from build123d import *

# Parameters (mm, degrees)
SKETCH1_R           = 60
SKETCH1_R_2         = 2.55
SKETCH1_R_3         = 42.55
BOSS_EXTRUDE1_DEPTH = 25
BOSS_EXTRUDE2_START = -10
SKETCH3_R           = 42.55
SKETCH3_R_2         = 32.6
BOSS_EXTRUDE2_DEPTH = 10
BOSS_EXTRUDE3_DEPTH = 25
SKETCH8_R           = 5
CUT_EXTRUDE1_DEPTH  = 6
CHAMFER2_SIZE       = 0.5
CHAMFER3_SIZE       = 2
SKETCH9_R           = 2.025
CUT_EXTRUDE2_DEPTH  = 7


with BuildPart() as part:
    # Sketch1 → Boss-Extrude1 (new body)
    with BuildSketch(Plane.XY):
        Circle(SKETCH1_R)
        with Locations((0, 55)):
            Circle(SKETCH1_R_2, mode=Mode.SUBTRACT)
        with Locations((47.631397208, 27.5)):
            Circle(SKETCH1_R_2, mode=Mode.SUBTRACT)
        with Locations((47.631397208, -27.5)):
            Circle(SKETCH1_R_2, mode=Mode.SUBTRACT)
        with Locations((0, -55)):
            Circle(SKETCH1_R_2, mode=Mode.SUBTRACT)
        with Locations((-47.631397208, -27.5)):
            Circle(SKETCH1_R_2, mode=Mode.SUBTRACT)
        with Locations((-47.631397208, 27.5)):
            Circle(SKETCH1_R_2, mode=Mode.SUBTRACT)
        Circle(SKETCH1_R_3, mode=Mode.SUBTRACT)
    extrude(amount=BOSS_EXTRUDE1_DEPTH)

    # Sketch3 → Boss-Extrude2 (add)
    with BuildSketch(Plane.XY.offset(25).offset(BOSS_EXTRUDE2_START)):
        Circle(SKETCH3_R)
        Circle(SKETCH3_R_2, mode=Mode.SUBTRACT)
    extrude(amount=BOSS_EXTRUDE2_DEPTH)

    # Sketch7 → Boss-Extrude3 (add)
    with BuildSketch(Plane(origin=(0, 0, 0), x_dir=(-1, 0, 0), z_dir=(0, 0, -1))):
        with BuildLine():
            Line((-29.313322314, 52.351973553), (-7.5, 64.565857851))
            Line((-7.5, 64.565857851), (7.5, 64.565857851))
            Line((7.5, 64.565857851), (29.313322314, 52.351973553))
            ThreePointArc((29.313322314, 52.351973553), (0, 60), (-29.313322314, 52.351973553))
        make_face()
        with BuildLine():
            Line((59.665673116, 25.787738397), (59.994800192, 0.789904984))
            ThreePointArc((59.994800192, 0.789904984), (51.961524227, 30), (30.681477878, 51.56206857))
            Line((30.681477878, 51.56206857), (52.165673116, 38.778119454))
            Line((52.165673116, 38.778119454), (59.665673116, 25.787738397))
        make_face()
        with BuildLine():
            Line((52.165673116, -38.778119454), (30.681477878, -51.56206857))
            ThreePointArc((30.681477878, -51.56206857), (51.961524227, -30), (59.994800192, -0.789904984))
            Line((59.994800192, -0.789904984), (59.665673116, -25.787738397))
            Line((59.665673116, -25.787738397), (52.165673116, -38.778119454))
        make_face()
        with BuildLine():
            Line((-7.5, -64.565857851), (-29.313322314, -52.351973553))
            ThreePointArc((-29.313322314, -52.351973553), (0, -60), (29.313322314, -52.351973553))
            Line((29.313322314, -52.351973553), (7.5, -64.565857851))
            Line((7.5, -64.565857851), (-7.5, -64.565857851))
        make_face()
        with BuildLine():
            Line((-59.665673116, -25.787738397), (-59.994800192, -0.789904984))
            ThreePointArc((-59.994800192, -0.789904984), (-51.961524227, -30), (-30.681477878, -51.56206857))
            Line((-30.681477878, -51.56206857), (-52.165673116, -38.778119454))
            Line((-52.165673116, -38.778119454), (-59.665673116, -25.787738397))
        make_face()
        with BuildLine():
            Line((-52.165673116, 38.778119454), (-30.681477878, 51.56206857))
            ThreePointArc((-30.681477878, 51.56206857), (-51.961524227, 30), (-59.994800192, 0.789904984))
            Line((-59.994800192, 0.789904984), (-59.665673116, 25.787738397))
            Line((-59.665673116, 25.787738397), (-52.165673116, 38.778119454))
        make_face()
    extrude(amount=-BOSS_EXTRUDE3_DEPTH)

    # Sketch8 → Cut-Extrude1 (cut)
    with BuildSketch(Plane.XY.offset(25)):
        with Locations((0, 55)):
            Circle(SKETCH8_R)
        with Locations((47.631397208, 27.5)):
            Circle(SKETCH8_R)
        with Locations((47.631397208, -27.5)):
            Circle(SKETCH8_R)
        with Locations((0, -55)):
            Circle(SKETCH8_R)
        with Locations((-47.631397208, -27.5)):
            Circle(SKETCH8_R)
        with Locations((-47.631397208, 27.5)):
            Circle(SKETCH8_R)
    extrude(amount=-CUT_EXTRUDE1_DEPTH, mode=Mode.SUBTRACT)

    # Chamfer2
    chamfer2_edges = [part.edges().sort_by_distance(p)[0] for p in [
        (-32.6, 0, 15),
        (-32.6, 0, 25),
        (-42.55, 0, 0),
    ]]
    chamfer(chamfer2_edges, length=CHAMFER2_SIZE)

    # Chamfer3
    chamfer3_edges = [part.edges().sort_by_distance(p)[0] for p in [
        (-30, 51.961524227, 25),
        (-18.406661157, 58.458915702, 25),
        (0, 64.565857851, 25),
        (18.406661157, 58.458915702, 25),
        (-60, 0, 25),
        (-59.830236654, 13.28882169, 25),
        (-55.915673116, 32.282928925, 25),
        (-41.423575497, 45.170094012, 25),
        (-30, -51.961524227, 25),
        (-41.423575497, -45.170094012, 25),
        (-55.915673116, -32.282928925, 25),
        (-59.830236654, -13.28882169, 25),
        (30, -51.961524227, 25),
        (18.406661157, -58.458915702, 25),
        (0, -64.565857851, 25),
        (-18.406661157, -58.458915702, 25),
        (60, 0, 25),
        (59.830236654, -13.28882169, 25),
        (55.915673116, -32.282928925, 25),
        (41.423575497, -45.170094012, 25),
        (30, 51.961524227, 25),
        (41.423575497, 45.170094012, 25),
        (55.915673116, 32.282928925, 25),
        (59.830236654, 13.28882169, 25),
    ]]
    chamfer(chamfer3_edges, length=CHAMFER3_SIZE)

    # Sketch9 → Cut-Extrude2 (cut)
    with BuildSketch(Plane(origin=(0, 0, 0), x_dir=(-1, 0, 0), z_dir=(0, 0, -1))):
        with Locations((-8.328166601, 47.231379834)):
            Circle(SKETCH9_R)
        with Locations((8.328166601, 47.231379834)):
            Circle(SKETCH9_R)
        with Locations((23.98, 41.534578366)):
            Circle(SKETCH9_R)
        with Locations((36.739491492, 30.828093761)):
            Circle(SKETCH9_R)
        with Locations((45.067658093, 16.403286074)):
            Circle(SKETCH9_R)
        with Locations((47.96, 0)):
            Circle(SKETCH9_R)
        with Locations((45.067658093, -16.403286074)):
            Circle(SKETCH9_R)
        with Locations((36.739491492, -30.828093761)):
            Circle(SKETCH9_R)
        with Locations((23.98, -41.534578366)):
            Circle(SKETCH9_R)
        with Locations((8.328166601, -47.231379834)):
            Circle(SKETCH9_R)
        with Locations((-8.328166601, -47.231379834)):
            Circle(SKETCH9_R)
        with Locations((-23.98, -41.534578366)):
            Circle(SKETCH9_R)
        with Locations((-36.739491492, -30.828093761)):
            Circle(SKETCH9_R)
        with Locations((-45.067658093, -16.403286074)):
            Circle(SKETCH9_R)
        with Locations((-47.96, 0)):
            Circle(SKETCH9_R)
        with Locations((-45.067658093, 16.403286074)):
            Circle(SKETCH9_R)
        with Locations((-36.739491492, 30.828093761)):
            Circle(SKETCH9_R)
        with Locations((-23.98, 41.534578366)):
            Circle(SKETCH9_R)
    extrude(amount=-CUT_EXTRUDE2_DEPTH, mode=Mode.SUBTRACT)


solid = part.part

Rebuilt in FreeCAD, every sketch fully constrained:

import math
import FreeCAD as App
import Part
import Sketcher
Q = App.Units.Quantity


def edges_at(feature, points):
    """Names of the edges that pass closest to the given points."""
    edges = feature.Shape.Edges
    near = lambda p: min(range(len(edges)), key=lambda i: edges[i].distToShape(Part.Vertex(*p))[0])
    return sorted({f"Edge{near(p) + 1}" for p in points})

doc = App.newDocument("Part")
body = doc.addObject("PartDesign::Body", "Body")

# Sketch on XY plane
sketch1 = body.newObject("Sketcher::SketchObject", "Sketch")
sketch1.AttachmentSupport = (doc.getObject("XY_Plane"), [""])
sketch1.MapMode = "FlatFace"
sketch1.addGeometry([
    Part.Circle(App.Vector(0, 0, 0), App.Vector(0, 0, 1), 60),  # 0
    Part.Circle(App.Vector(0, -55, 0), App.Vector(0, 0, 1), 2.5),  # 1
    Part.Circle(App.Vector(-47.6, -27.5, 0), App.Vector(0, 0, 1), 2.5),  # 2
    Part.Circle(App.Vector(47.6, -27.5, 0), App.Vector(0, 0, 1), 2.5),  # 3
    Part.Circle(App.Vector(-47.6, 27.5, 0), App.Vector(0, 0, 1), 2.5),  # 4
    Part.Circle(App.Vector(0, 0, 0), App.Vector(0, 0, 1), 42.5),  # 5
    Part.Circle(App.Vector(0, 55, 0), App.Vector(0, 0, 1), 2.5),  # 6
    Part.Circle(App.Vector(47.6, 27.5, 0), App.Vector(0, 0, 1), 2.5),  # 7
], False)
sketch1.addConstraint([
    Sketcher.Constraint("Coincident", 0, 3, -1, 1),
    Sketcher.Constraint("Coincident", 5, 3, -1, 1),
    Sketcher.Constraint("Equal", 1, 2),
    Sketcher.Constraint("Equal", 2, 3),
    Sketcher.Constraint("Equal", 3, 4),
    Sketcher.Constraint("Equal", 4, 6),
    Sketcher.Constraint("Equal", 6, 7),
    Sketcher.Constraint("Symmetric", 3, 3, 4, 3, -1, 1),
    Sketcher.Constraint("Symmetric", 1, 3, 6, 3, -1, 1),
    Sketcher.Constraint("Symmetric", 2, 3, 7, 3, -1, 1),
    Sketcher.Constraint("Symmetric", 2, 3, 3, 3, -2),
    Sketcher.Constraint("PointOnObject", 1, 3, -2),
    Sketcher.Constraint("Diameter", 0, 120.0),
    Sketcher.Constraint("Diameter", 1, 5.1),
    Sketcher.Constraint("Diameter", 5, 85.1),
    Sketcher.Constraint("DistanceY", 1, 3, -1, 1, 55.0),
    Sketcher.Constraint("DistanceY", 2, 3, 4, 3, 55.0),
    Sketcher.Constraint("DistanceX", 2, 3, -1, 1, 47.631397),
])
pad1 = body.newObject("PartDesign::Pad", "Pad")
pad1.Profile = sketch1
pad1.Length = 25

# Sketch on XY plane
sketch2 = body.newObject("Sketcher::SketchObject", "Sketch001")
sketch2.AttachmentSupport = (doc.getObject("XY_Plane"), [""])
sketch2.MapMode = "FlatFace"
sketch2.AttachmentOffset = App.Placement(App.Vector(0, 0, 15), App.Rotation())
sketch2.addGeometry([
    Part.Circle(App.Vector(0, 0, 0), App.Vector(0, 0, 1), 43),
    Part.Circle(App.Vector(0, 0, 0), App.Vector(0, 0, 1), 33),
], False)
sketch2.addConstraint([
    Sketcher.Constraint("Coincident", 0, 3, -1, 1),
    Sketcher.Constraint("Coincident", 1, 3, -1, 1),
    Sketcher.Constraint("Diameter", 0, 85.1),
    Sketcher.Constraint("Diameter", 1, 65.2),
])
pad2 = body.newObject("PartDesign::Pad", "Pad001")
pad2.Profile = sketch2
pad2.Length = 10

# Sketch on XY plane
sketch3 = body.newObject("Sketcher::SketchObject", "Sketch002")
sketch3.AttachmentSupport = (doc.getObject("XY_Plane"), [""])
sketch3.MapMode = "FlatFace"
sketch3.addGeometry([
    Part.LineSegment(App.Vector(8, 65, 0), App.Vector(29, 52, 0)),  # 0
    Part.ArcOfCircle(Part.Circle(App.Vector(0, 0, 0), App.Vector(0, 0, 1), 60), math.radians(61), math.radians(119)),  # 1
    Part.LineSegment(App.Vector(-29, 52, 0), App.Vector(-8, 65, 0)),  # 2
    Part.LineSegment(App.Vector(-8, 65, 0), App.Vector(8, 65, 0)),  # 3
    Part.LineSegment(App.Vector(-60, 1, 0), App.Vector(-60, 26, 0)),  # 4
    Part.LineSegment(App.Vector(-60, 26, 0), App.Vector(-52, 39, 0)),  # 5
    Part.LineSegment(App.Vector(-52, 39, 0), App.Vector(-31, 52, 0)),  # 6
    Part.ArcOfCircle(Part.Circle(App.Vector(0, 0, 0), App.Vector(0, 0, 1), 60), math.radians(121), math.radians(179)),  # 7
    Part.LineSegment(App.Vector(-31, -52, 0), App.Vector(-52, -39, 0)),  # 8
    Part.LineSegment(App.Vector(-52, -39, 0), App.Vector(-60, -26, 0)),  # 9
    Part.LineSegment(App.Vector(-60, -26, 0), App.Vector(-60, -1, 0)),  # 10
    Part.ArcOfCircle(Part.Circle(App.Vector(0, 0, 0), App.Vector(0, 0, 1), 60), math.radians(-179), math.radians(-121)),  # 11
    Part.LineSegment(App.Vector(29, -52, 0), App.Vector(8, -65, 0)),  # 12
    Part.LineSegment(App.Vector(8, -65, 0), App.Vector(-8, -65, 0)),  # 13
    Part.LineSegment(App.Vector(-8, -65, 0), App.Vector(-29, -52, 0)),  # 14
    Part.ArcOfCircle(Part.Circle(App.Vector(0, 0, 0), App.Vector(0, 0, 1), 60), math.radians(-119), math.radians(-61)),  # 15
    Part.LineSegment(App.Vector(60, -1, 0), App.Vector(60, -26, 0)),  # 16
    Part.LineSegment(App.Vector(60, -26, 0), App.Vector(52, -39, 0)),  # 17
    Part.LineSegment(App.Vector(52, -39, 0), App.Vector(31, -52, 0)),  # 18
    Part.ArcOfCircle(Part.Circle(App.Vector(0, 0, 0), App.Vector(0, 0, 1), 60), math.radians(-59), math.radians(-1)),  # 19
    Part.LineSegment(App.Vector(31, 52, 0), App.Vector(52, 39, 0)),  # 20
    Part.LineSegment(App.Vector(52, 39, 0), App.Vector(60, 26, 0)),  # 21
    Part.LineSegment(App.Vector(60, 26, 0), App.Vector(60, 1, 0)),  # 22
    Part.ArcOfCircle(Part.Circle(App.Vector(0, 0, 0), App.Vector(0, 0, 1), 60), math.radians(1), math.radians(59)),  # 23
], False)
sketch3.addConstraint([
    Sketcher.Constraint("Tangent", 0, 2, 1, 1),
    Sketcher.Constraint("Tangent", 1, 2, 2, 1),
    Sketcher.Constraint("Coincident", 2, 2, 3, 1),
    Sketcher.Constraint("Coincident", 3, 2, 0, 1),
    Sketcher.Constraint("Coincident", 4, 2, 5, 1),
    Sketcher.Constraint("Coincident", 5, 2, 6, 1),
    Sketcher.Constraint("Tangent", 6, 2, 7, 1),
    Sketcher.Constraint("Tangent", 7, 2, 4, 1),
    Sketcher.Constraint("Coincident", 8, 2, 9, 1),
    Sketcher.Constraint("Coincident", 9, 2, 10, 1),
    Sketcher.Constraint("Tangent", 10, 2, 11, 1),
    Sketcher.Constraint("Tangent", 11, 2, 8, 1),
    Sketcher.Constraint("Coincident", 12, 2, 13, 1),
    Sketcher.Constraint("Coincident", 13, 2, 14, 1),
    Sketcher.Constraint("Tangent", 14, 2, 15, 1),
    Sketcher.Constraint("Tangent", 15, 2, 12, 1),
    Sketcher.Constraint("Coincident", 16, 2, 17, 1),
    Sketcher.Constraint("Coincident", 17, 2, 18, 1),
    Sketcher.Constraint("Tangent", 18, 2, 19, 1),
    Sketcher.Constraint("Tangent", 19, 2, 16, 1),
    Sketcher.Constraint("Coincident", 20, 2, 21, 1),
    Sketcher.Constraint("Coincident", 21, 2, 22, 1),
    Sketcher.Constraint("Tangent", 22, 2, 23, 1),
    Sketcher.Constraint("Tangent", 23, 2, 20, 1),
    Sketcher.Constraint("Horizontal", 3),
    Sketcher.Constraint("Horizontal", 13),
    Sketcher.Constraint("Coincident", 1, 3, -1, 1),
    Sketcher.Constraint("Coincident", 7, 3, -1, 1),
    Sketcher.Constraint("Coincident", 11, 3, -1, 1),
    Sketcher.Constraint("Coincident", 15, 3, -1, 1),
    Sketcher.Constraint("Coincident", 19, 3, -1, 1),
    Sketcher.Constraint("Coincident", 23, 3, -1, 1),
    Sketcher.Constraint("Equal", 1, 7),
    Sketcher.Constraint("Equal", 7, 11),
    Sketcher.Constraint("Equal", 11, 15),
    Sketcher.Constraint("Equal", 15, 19),
    Sketcher.Constraint("Equal", 19, 23),
    Sketcher.Constraint("Symmetric", 2, 2, 12, 2, -1, 1),
    Sketcher.Constraint("Symmetric", 4, 2, 16, 2, -1, 1),
    Sketcher.Constraint("Symmetric", 5, 2, 17, 2, -1, 1),
    Sketcher.Constraint("Symmetric", 8, 2, 20, 2, -1, 1),
    Sketcher.Constraint("Symmetric", 9, 2, 21, 2, -1, 1),
    Sketcher.Constraint("Symmetric", 9, 2, 16, 2, -2),
    Sketcher.Constraint("Symmetric", 8, 2, 17, 2, -2),
    Sketcher.Constraint("Parallel", 0, 14),
    Sketcher.Constraint("Horizontal", 0, 2, 1, 2),
    Sketcher.Constraint("Equal", 2, 4),
    Sketcher.Constraint("Equal", 4, 6),
    Sketcher.Constraint("Radius", 1, 60.0),
    Sketcher.Constraint("DistanceX", 3, 1, 3, 2, 15.0),
    Sketcher.Constraint("Angle", 5, Q("60 deg")),
    Sketcher.Constraint("Distance", 0, 25.0),
    Sketcher.Constraint("Distance", 5, 15.0),
])
pad3 = body.newObject("PartDesign::Pad", "Pad002")
pad3.Profile = sketch3
pad3.Length = 25

# Sketch on XY plane
sketch4 = body.newObject("Sketcher::SketchObject", "Sketch003")
sketch4.AttachmentSupport = (doc.getObject("XY_Plane"), [""])
sketch4.MapMode = "FlatFace"
sketch4.AttachmentOffset = App.Placement(App.Vector(0, 0, 25), App.Rotation())
sketch4.addGeometry([
    Part.Circle(App.Vector(0, 55, 0), App.Vector(0, 0, 1), 5),  # 0
    Part.Circle(App.Vector(48, 28, 0), App.Vector(0, 0, 1), 5),  # 1
    Part.Circle(App.Vector(48, -28, 0), App.Vector(0, 0, 1), 5),  # 2
    Part.Circle(App.Vector(0, -55, 0), App.Vector(0, 0, 1), 5),  # 3
    Part.Circle(App.Vector(-48, -28, 0), App.Vector(0, 0, 1), 5),  # 4
    Part.Circle(App.Vector(-48, 28, 0), App.Vector(0, 0, 1), 5),  # 5
], False)
sketch4.addConstraint([
    Sketcher.Constraint("Equal", 0, 1),
    Sketcher.Constraint("Equal", 1, 2),
    Sketcher.Constraint("Equal", 2, 3),
    Sketcher.Constraint("Equal", 3, 4),
    Sketcher.Constraint("Equal", 4, 5),
    Sketcher.Constraint("Symmetric", 0, 3, 3, 3, -1, 1),
    Sketcher.Constraint("Symmetric", 1, 3, 4, 3, -1, 1),
    Sketcher.Constraint("Symmetric", 2, 3, 5, 3, -1, 1),
    Sketcher.Constraint("Symmetric", 2, 3, 4, 3, -2),
    Sketcher.Constraint("PointOnObject", 0, 3, -2),
    Sketcher.Constraint("Diameter", 0, 10.0),
    Sketcher.Constraint("DistanceY", -1, 1, 0, 3, 55.0),
    Sketcher.Constraint("DistanceY", 2, 3, 1, 3, 55.0),
    Sketcher.Constraint("DistanceX", -1, 1, 1, 3, 47.631397),
])
pocket1 = body.newObject("PartDesign::Pocket", "Pocket")
pocket1.Profile = sketch4
pocket1.Length = 6
doc.recompute()

chamfer = body.newObject("PartDesign::Chamfer", "Chamfer")
chamfer.Base = (pocket1, edges_at(pocket1, [(-32.6, 0, 15), (-32.6, 0, 25), (-42.55, 0, 0)]))
chamfer.Size = 0.5
doc.recompute()

chamfer2 = body.newObject("PartDesign::Chamfer", "Chamfer001")
chamfer2.Base = (chamfer, edges_at(chamfer, [
    (-30, 51.962, 25),
    (-18.407, 58.459, 25),
    (0, 64.566, 25),
    (18.407, 58.459, 25),
    (-60, 0, 25),
    (-59.83, 13.289, 25),
    (-55.916, 32.283, 25),
    (-41.424, 45.17, 25),
    (-30, -51.962, 25),
    (-41.424, -45.17, 25),
    (-55.916, -32.283, 25),
    (-59.83, -13.289, 25),
    (30, -51.962, 25),
    (18.407, -58.459, 25),
    (0, -64.566, 25),
    (-18.407, -58.459, 25),
    (60, 0, 25),
    (59.83, -13.289, 25),
    (55.916, -32.283, 25),
    (41.424, -45.17, 25),
    (30, 51.962, 25),
    (41.424, 45.17, 25),
    (55.916, 32.283, 25),
    (59.83, 13.289, 25),
]))
chamfer2.Size = 2

# Sketch on XY plane
sketch5 = body.newObject("Sketcher::SketchObject", "Sketch004")
sketch5.AttachmentSupport = (doc.getObject("XY_Plane"), [""])
sketch5.MapMode = "FlatFace"
sketch5.addGeometry([
    Part.Circle(App.Vector(8.3, 47.2, 0), App.Vector(0, 0, 1), 2),  # 0
    Part.Circle(App.Vector(-8.3, 47.2, 0), App.Vector(0, 0, 1), 2),  # 1
    Part.Circle(App.Vector(-24, 41.5, 0), App.Vector(0, 0, 1), 2),  # 2
    Part.Circle(App.Vector(-36.7, 30.8, 0), App.Vector(0, 0, 1), 2),  # 3
    Part.Circle(App.Vector(-45.1, 16.4, 0), App.Vector(0, 0, 1), 2),  # 4
    Part.Circle(App.Vector(-48, 0, 0), App.Vector(0, 0, 1), 2),  # 5
    Part.Circle(App.Vector(-45.1, -16.4, 0), App.Vector(0, 0, 1), 2),  # 6
    Part.Circle(App.Vector(-36.7, -30.8, 0), App.Vector(0, 0, 1), 2),  # 7
    Part.Circle(App.Vector(-24, -41.5, 0), App.Vector(0, 0, 1), 2),  # 8
    Part.Circle(App.Vector(-8.3, -47.2, 0), App.Vector(0, 0, 1), 2),  # 9
    Part.Circle(App.Vector(8.3, -47.2, 0), App.Vector(0, 0, 1), 2),  # 10
    Part.Circle(App.Vector(24, -41.5, 0), App.Vector(0, 0, 1), 2),  # 11
    Part.Circle(App.Vector(36.7, -30.8, 0), App.Vector(0, 0, 1), 2),  # 12
    Part.Circle(App.Vector(45.1, -16.4, 0), App.Vector(0, 0, 1), 2),  # 13
    Part.Circle(App.Vector(48, 0, 0), App.Vector(0, 0, 1), 2),  # 14
    Part.Circle(App.Vector(45.1, 16.4, 0), App.Vector(0, 0, 1), 2),  # 15
    Part.Circle(App.Vector(36.7, 30.8, 0), App.Vector(0, 0, 1), 2),  # 16
    Part.Circle(App.Vector(24, 41.5, 0), App.Vector(0, 0, 1), 2),  # 17
], False)
sketch5.addConstraint([
    Sketcher.Constraint("Equal", 0, 1),
    Sketcher.Constraint("Equal", 1, 2),
    Sketcher.Constraint("Equal", 2, 3),
    Sketcher.Constraint("Equal", 3, 4),
    Sketcher.Constraint("Equal", 4, 5),
    Sketcher.Constraint("Equal", 5, 6),
    Sketcher.Constraint("Equal", 6, 7),
    Sketcher.Constraint("Equal", 7, 8),
    Sketcher.Constraint("Equal", 8, 9),
    Sketcher.Constraint("Equal", 9, 10),
    Sketcher.Constraint("Equal", 10, 11),
    Sketcher.Constraint("Equal", 11, 12),
    Sketcher.Constraint("Equal", 12, 13),
    Sketcher.Constraint("Equal", 13, 14),
    Sketcher.Constraint("Equal", 14, 15),
    Sketcher.Constraint("Equal", 15, 16),
    Sketcher.Constraint("Equal", 16, 17),
    Sketcher.Constraint("Symmetric", 0, 3, 9, 3, -1, 1),
    Sketcher.Constraint("Symmetric", 1, 3, 10, 3, -1, 1),
    Sketcher.Constraint("Symmetric", 2, 3, 11, 3, -1, 1),
    Sketcher.Constraint("Symmetric", 3, 3, 12, 3, -1, 1),
    Sketcher.Constraint("Symmetric", 4, 3, 13, 3, -1, 1),
    Sketcher.Constraint("Symmetric", 5, 3, 14, 3, -1, 1),
    Sketcher.Constraint("Symmetric", 6, 3, 15, 3, -1, 1),
    Sketcher.Constraint("Symmetric", 7, 3, 16, 3, -1, 1),
    Sketcher.Constraint("Symmetric", 8, 3, 17, 3, -1, 1),
    Sketcher.Constraint("Symmetric", 0, 3, 1, 3, -2),
    Sketcher.Constraint("Symmetric", 8, 3, 11, 3, -2),
    Sketcher.Constraint("Symmetric", 7, 3, 12, 3, -2),
    Sketcher.Constraint("Symmetric", 6, 3, 13, 3, -2),
    Sketcher.Constraint("PointOnObject", 5, 3, -1),
    Sketcher.Constraint("Diameter", 0, 4.05),
    Sketcher.Constraint("DistanceX", 2, 3, -1, 1, 23.98),
    Sketcher.Constraint("DistanceX", 5, 3, -1, 1, 47.96),
    Sketcher.Constraint("DistanceY", 2, 3, 1, 3, 5.696801),
    Sketcher.Constraint("DistanceY", -1, 1, 0, 3, 47.23138),
    Sketcher.Constraint("DistanceX", 3, 3, -1, 1, 36.739491),
    Sketcher.Constraint("DistanceX", 4, 3, -1, 1, 45.067658),
    Sketcher.Constraint("DistanceX", 3, 3, 0, 3, 45.067658),
    Sketcher.Constraint("DistanceY", 6, 3, 3, 3, 47.23138),
    Sketcher.Constraint("DistanceY", -1, 1, 3, 3, 30.828094),
])
pocket2 = body.newObject("PartDesign::Pocket", "Pocket001")
pocket2.Profile = sketch5
pocket2.Length = 7
pocket2.Reversed = True

doc.recompute()
